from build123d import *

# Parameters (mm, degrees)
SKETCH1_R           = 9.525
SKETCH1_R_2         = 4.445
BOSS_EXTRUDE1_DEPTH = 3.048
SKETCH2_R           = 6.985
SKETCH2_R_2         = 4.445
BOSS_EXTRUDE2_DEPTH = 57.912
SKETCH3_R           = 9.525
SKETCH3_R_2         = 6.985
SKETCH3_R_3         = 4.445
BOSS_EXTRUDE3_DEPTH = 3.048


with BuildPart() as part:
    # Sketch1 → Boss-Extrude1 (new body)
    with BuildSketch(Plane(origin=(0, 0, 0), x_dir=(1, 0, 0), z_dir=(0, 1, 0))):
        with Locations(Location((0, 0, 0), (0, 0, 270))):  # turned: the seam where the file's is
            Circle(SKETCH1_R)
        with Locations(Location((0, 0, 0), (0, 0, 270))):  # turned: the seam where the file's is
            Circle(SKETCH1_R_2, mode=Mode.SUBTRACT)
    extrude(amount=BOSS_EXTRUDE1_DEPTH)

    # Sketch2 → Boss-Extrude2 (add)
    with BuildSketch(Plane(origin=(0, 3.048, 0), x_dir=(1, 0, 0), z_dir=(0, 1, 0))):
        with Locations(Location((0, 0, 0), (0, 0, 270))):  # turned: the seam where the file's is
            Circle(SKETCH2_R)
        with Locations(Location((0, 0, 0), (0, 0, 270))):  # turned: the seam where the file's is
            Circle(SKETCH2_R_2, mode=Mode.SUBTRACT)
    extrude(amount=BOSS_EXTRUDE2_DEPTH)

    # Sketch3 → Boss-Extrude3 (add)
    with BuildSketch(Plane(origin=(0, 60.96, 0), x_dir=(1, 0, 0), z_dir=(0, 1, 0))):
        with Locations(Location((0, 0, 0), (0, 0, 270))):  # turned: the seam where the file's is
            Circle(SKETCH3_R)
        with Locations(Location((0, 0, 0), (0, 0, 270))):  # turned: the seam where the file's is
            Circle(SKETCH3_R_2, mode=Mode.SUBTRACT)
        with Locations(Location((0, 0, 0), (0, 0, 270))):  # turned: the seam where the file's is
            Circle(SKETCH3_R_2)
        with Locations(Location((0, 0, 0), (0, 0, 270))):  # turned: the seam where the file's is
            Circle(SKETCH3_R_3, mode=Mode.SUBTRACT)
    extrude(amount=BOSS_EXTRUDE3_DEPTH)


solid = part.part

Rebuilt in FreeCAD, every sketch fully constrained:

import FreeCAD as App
import Part
import Sketcher
Q = App.Units.Quantity

doc = App.newDocument("Part")
params = doc.addObject("Spreadsheet::Sheet", "Params")
for row, (alias, value) in enumerate([
    ("sketch1_diameter", "0.75 in"),
    ("sketch1_diameter2", "0.35 in"),
    ("pad1_length", "0.12 in"),
    ("sketch2_diameter", "0.55 in"),
    ("sketch2_diameter2", "0.35 in"),
    ("pad2_length", "2.28 in"),
    ("sketch3_diameter", "0.75 in"),
    ("sketch3_diameter2", "0.35 in"),
    ("pad3_length", "0.12 in"),
], start=1):
    params.set(f"A{row}", alias)
    params.set(f"B{row}", "=" + value)
    params.setAlias(f"B{row}", alias)

body = doc.addObject("PartDesign::Body", "Body")

# Sketch on XZ plane
sketch1 = body.newObject("Sketcher::SketchObject", "Sketch")
sketch1.AttachmentSupport = (doc.getObject("XZ_Plane"), [""])
sketch1.MapMode = "FlatFace"
sketch1.addGeometry(Part.Circle(App.Vector(0, 0, 0), App.Vector(0, 0, 1), 9.5), False)
sketch1.addGeometry(Part.Circle(App.Vector(0, 0, 0), App.Vector(0, 0, 1), 4.4), False)
sketch1.addConstraint(Sketcher.Constraint("Coincident", 0, 3, -1, 1))
sketch1.addConstraint(Sketcher.Constraint("Coincident", 1, 3, -1, 1))
sketch1.addConstraint(Sketcher.Constraint("Diameter", 0, Q("0.75 in")))
sketch1.addConstraint(Sketcher.Constraint("Diameter", 1, Q("0.35 in")))
sketch1.setExpression("Constraints[2]", "Params.sketch1_diameter")
sketch1.setExpression("Constraints[3]", "Params.sketch1_diameter2")
pad1 = body.newObject("PartDesign::Pad", "Pad")
pad1.Profile = sketch1
pad1.setExpression("Length", "Params.pad1_length")
pad1.Reversed = True

# Sketch on XZ plane
sketch2 = body.newObject("Sketcher::SketchObject", "Sketch001")
sketch2.AttachmentSupport = (doc.getObject("XZ_Plane"), [""])
sketch2.MapMode = "FlatFace"
sketch2.AttachmentOffset = App.Placement(App.Vector(0, 0, -0.12 * 25.4), App.Rotation())
sketch2.addGeometry(Part.Circle(App.Vector(0, 0, 0), App.Vector(0, 0, 1), 7), False)
sketch2.addGeometry(Part.Circle(App.Vector(0, 0, 0), App.Vector(0, 0, 1), 4.4), False)
sketch2.addConstraint(Sketcher.Constraint("Coincident", 0, 3, -1, 1))
sketch2.addConstraint(Sketcher.Constraint("Coincident", 1, 3, -1, 1))
sketch2.addConstraint(Sketcher.Constraint("Diameter", 0, Q("0.55 in")))
sketch2.addConstraint(Sketcher.Constraint("Diameter", 1, Q("0.35 in")))
sketch2.setExpression("Constraints[2]", "Params.sketch2_diameter")
sketch2.setExpression("Constraints[3]", "Params.sketch2_diameter2")
pad2 = body.newObject("PartDesign::Pad", "Pad001")
pad2.Profile = sketch2
pad2.setExpression("Length", "Params.pad2_length")
pad2.Reversed = True

# Sketch on XZ plane
sketch3 = body.newObject("Sketcher::SketchObject", "Sketch002")
sketch3.AttachmentSupport = (doc.getObject("XZ_Plane"), [""])
sketch3.MapMode = "FlatFace"
sketch3.AttachmentOffset = App.Placement(App.Vector(0, 0, -2.4 * 25.4), App.Rotation())
sketch3.addGeometry(Part.Circle(App.Vector(0, 0, 0), App.Vector(0, 0, 1), 9.5), False)
sketch3.addGeometry(Part.Circle(App.Vector(0, 0, 0), App.Vector(0, 0, 1), 4.4), False)
sketch3.addConstraint(Sketcher.Constraint("Coincident", 0, 3, -1, 1))
sketch3.addConstraint(Sketcher.Constraint("Coincident", 1, 3, -1, 1))
sketch3.addConstraint(Sketcher.Constraint("Diameter", 0, Q("0.75 in")))
sketch3.addConstraint(Sketcher.Constraint("Diameter", 1, Q("0.35 in")))
sketch3.setExpression("Constraints[2]", "Params.sketch3_diameter")
sketch3.setExpression("Constraints[3]", "Params.sketch3_diameter2")
pad3 = body.newObject("PartDesign::Pad", "Pad002")
pad3.Profile = sketch3
pad3.setExpression("Length", "Params.pad3_length")
pad3.Reversed = True

doc.recompute()
